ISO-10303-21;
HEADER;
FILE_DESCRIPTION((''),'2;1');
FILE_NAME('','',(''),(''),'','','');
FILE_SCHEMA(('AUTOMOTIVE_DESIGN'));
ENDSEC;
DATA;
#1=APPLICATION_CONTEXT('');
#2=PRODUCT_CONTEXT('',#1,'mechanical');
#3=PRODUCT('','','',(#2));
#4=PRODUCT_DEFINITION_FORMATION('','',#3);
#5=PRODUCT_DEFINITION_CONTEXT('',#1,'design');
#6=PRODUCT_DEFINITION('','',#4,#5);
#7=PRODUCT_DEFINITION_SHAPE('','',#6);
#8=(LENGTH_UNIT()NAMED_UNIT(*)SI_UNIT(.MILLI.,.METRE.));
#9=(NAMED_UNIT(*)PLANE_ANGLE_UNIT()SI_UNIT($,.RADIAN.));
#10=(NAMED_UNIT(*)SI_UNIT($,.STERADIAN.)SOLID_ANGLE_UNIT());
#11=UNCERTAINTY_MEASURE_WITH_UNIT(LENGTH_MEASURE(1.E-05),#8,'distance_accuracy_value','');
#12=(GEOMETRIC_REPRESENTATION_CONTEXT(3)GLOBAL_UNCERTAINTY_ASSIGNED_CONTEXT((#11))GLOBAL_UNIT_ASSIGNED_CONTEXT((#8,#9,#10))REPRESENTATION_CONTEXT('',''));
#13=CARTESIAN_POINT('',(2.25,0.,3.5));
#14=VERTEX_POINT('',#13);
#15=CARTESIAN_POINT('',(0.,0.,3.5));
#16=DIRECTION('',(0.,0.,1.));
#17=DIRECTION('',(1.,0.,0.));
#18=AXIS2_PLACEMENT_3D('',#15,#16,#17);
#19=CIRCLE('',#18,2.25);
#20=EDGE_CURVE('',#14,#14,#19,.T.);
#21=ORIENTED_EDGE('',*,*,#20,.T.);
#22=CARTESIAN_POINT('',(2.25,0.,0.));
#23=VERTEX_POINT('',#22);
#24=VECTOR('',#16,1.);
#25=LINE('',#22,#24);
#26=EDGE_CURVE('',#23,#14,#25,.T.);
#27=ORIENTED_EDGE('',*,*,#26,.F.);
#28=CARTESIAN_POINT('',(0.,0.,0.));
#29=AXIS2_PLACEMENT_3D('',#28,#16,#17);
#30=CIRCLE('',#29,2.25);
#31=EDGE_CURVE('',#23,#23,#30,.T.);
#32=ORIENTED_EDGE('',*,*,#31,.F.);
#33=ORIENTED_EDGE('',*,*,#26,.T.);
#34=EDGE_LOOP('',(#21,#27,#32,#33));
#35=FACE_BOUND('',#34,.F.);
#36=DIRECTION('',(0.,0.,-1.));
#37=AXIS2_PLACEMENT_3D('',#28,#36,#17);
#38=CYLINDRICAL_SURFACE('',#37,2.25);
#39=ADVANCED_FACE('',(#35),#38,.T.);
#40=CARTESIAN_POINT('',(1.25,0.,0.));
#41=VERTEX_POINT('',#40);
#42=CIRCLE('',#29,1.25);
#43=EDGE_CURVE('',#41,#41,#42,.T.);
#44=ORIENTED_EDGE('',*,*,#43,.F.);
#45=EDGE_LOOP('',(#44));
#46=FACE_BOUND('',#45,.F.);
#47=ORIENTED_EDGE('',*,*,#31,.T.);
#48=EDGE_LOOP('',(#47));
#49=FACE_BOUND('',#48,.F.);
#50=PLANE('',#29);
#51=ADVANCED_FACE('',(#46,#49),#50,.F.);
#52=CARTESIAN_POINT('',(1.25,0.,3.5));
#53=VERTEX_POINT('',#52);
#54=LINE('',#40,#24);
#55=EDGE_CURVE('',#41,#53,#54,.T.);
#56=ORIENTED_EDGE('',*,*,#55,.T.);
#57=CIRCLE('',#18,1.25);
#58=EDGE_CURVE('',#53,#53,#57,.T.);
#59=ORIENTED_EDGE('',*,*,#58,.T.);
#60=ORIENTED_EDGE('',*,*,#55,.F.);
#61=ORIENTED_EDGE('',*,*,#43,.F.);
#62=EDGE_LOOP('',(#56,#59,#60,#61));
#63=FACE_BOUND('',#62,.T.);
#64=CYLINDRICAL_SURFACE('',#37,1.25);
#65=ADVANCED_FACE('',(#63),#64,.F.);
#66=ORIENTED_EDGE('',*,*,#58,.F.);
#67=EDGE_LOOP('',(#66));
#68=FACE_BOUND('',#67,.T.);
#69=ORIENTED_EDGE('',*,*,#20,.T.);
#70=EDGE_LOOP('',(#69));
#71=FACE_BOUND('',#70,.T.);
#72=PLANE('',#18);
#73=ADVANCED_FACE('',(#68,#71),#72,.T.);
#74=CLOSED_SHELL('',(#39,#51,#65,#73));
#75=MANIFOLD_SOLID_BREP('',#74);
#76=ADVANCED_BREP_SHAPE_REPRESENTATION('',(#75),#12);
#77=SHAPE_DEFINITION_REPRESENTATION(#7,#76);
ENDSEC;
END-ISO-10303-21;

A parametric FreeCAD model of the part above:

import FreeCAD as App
import Part
import Sketcher
from FreeCAD import Vector

doc = App.newDocument("Part")
params = doc.addObject("Spreadsheet::Sheet", "Params")
for row, (alias, value) in enumerate([
    ("sketch1_diameter", "4.5 mm"),
    ("sketch1_diameter2", "2.5 mm"),
    ("pad1_length", "3.5 mm"),
], start=1):
    params.set(f"A{row}", alias)
    params.set(f"B{row}", "=" + value)
    params.setAlias(f"B{row}", alias)

body = doc.addObject("PartDesign::Body", "Body")

# Sketch on XY plane
sketch1 = body.newObject("Sketcher::SketchObject", "Sketch")
sketch1.AttachmentSupport = (doc.getObject("XY_Plane"), [""])
sketch1.MapMode = "FlatFace"
sketch1.addGeometry(Part.Circle(Vector(0, 0, 0), Vector(0, 0, 1), 2.2), False)
sketch1.addGeometry(Part.Circle(Vector(0, 0, 0), Vector(0, 0, 1), 1.2), False)
sketch1.addConstraint(Sketcher.Constraint("Coincident", 0, 3, -1, 1))
sketch1.addConstraint(Sketcher.Constraint("Coincident", 1, 3, -1, 1))
sketch1.addConstraint(Sketcher.Constraint("Diameter", 0, 4.5))
sketch1.addConstraint(Sketcher.Constraint("Diameter", 1, 2.5))
sketch1.setExpression("Constraints[2]", "Params.sketch1_diameter")
sketch1.setExpression("Constraints[3]", "Params.sketch1_diameter2")
pad1 = body.newObject("PartDesign::Pad", "Pad")
pad1.Profile = sketch1
pad1.setExpression("Length", "Params.pad1_length")

doc.recompute()
